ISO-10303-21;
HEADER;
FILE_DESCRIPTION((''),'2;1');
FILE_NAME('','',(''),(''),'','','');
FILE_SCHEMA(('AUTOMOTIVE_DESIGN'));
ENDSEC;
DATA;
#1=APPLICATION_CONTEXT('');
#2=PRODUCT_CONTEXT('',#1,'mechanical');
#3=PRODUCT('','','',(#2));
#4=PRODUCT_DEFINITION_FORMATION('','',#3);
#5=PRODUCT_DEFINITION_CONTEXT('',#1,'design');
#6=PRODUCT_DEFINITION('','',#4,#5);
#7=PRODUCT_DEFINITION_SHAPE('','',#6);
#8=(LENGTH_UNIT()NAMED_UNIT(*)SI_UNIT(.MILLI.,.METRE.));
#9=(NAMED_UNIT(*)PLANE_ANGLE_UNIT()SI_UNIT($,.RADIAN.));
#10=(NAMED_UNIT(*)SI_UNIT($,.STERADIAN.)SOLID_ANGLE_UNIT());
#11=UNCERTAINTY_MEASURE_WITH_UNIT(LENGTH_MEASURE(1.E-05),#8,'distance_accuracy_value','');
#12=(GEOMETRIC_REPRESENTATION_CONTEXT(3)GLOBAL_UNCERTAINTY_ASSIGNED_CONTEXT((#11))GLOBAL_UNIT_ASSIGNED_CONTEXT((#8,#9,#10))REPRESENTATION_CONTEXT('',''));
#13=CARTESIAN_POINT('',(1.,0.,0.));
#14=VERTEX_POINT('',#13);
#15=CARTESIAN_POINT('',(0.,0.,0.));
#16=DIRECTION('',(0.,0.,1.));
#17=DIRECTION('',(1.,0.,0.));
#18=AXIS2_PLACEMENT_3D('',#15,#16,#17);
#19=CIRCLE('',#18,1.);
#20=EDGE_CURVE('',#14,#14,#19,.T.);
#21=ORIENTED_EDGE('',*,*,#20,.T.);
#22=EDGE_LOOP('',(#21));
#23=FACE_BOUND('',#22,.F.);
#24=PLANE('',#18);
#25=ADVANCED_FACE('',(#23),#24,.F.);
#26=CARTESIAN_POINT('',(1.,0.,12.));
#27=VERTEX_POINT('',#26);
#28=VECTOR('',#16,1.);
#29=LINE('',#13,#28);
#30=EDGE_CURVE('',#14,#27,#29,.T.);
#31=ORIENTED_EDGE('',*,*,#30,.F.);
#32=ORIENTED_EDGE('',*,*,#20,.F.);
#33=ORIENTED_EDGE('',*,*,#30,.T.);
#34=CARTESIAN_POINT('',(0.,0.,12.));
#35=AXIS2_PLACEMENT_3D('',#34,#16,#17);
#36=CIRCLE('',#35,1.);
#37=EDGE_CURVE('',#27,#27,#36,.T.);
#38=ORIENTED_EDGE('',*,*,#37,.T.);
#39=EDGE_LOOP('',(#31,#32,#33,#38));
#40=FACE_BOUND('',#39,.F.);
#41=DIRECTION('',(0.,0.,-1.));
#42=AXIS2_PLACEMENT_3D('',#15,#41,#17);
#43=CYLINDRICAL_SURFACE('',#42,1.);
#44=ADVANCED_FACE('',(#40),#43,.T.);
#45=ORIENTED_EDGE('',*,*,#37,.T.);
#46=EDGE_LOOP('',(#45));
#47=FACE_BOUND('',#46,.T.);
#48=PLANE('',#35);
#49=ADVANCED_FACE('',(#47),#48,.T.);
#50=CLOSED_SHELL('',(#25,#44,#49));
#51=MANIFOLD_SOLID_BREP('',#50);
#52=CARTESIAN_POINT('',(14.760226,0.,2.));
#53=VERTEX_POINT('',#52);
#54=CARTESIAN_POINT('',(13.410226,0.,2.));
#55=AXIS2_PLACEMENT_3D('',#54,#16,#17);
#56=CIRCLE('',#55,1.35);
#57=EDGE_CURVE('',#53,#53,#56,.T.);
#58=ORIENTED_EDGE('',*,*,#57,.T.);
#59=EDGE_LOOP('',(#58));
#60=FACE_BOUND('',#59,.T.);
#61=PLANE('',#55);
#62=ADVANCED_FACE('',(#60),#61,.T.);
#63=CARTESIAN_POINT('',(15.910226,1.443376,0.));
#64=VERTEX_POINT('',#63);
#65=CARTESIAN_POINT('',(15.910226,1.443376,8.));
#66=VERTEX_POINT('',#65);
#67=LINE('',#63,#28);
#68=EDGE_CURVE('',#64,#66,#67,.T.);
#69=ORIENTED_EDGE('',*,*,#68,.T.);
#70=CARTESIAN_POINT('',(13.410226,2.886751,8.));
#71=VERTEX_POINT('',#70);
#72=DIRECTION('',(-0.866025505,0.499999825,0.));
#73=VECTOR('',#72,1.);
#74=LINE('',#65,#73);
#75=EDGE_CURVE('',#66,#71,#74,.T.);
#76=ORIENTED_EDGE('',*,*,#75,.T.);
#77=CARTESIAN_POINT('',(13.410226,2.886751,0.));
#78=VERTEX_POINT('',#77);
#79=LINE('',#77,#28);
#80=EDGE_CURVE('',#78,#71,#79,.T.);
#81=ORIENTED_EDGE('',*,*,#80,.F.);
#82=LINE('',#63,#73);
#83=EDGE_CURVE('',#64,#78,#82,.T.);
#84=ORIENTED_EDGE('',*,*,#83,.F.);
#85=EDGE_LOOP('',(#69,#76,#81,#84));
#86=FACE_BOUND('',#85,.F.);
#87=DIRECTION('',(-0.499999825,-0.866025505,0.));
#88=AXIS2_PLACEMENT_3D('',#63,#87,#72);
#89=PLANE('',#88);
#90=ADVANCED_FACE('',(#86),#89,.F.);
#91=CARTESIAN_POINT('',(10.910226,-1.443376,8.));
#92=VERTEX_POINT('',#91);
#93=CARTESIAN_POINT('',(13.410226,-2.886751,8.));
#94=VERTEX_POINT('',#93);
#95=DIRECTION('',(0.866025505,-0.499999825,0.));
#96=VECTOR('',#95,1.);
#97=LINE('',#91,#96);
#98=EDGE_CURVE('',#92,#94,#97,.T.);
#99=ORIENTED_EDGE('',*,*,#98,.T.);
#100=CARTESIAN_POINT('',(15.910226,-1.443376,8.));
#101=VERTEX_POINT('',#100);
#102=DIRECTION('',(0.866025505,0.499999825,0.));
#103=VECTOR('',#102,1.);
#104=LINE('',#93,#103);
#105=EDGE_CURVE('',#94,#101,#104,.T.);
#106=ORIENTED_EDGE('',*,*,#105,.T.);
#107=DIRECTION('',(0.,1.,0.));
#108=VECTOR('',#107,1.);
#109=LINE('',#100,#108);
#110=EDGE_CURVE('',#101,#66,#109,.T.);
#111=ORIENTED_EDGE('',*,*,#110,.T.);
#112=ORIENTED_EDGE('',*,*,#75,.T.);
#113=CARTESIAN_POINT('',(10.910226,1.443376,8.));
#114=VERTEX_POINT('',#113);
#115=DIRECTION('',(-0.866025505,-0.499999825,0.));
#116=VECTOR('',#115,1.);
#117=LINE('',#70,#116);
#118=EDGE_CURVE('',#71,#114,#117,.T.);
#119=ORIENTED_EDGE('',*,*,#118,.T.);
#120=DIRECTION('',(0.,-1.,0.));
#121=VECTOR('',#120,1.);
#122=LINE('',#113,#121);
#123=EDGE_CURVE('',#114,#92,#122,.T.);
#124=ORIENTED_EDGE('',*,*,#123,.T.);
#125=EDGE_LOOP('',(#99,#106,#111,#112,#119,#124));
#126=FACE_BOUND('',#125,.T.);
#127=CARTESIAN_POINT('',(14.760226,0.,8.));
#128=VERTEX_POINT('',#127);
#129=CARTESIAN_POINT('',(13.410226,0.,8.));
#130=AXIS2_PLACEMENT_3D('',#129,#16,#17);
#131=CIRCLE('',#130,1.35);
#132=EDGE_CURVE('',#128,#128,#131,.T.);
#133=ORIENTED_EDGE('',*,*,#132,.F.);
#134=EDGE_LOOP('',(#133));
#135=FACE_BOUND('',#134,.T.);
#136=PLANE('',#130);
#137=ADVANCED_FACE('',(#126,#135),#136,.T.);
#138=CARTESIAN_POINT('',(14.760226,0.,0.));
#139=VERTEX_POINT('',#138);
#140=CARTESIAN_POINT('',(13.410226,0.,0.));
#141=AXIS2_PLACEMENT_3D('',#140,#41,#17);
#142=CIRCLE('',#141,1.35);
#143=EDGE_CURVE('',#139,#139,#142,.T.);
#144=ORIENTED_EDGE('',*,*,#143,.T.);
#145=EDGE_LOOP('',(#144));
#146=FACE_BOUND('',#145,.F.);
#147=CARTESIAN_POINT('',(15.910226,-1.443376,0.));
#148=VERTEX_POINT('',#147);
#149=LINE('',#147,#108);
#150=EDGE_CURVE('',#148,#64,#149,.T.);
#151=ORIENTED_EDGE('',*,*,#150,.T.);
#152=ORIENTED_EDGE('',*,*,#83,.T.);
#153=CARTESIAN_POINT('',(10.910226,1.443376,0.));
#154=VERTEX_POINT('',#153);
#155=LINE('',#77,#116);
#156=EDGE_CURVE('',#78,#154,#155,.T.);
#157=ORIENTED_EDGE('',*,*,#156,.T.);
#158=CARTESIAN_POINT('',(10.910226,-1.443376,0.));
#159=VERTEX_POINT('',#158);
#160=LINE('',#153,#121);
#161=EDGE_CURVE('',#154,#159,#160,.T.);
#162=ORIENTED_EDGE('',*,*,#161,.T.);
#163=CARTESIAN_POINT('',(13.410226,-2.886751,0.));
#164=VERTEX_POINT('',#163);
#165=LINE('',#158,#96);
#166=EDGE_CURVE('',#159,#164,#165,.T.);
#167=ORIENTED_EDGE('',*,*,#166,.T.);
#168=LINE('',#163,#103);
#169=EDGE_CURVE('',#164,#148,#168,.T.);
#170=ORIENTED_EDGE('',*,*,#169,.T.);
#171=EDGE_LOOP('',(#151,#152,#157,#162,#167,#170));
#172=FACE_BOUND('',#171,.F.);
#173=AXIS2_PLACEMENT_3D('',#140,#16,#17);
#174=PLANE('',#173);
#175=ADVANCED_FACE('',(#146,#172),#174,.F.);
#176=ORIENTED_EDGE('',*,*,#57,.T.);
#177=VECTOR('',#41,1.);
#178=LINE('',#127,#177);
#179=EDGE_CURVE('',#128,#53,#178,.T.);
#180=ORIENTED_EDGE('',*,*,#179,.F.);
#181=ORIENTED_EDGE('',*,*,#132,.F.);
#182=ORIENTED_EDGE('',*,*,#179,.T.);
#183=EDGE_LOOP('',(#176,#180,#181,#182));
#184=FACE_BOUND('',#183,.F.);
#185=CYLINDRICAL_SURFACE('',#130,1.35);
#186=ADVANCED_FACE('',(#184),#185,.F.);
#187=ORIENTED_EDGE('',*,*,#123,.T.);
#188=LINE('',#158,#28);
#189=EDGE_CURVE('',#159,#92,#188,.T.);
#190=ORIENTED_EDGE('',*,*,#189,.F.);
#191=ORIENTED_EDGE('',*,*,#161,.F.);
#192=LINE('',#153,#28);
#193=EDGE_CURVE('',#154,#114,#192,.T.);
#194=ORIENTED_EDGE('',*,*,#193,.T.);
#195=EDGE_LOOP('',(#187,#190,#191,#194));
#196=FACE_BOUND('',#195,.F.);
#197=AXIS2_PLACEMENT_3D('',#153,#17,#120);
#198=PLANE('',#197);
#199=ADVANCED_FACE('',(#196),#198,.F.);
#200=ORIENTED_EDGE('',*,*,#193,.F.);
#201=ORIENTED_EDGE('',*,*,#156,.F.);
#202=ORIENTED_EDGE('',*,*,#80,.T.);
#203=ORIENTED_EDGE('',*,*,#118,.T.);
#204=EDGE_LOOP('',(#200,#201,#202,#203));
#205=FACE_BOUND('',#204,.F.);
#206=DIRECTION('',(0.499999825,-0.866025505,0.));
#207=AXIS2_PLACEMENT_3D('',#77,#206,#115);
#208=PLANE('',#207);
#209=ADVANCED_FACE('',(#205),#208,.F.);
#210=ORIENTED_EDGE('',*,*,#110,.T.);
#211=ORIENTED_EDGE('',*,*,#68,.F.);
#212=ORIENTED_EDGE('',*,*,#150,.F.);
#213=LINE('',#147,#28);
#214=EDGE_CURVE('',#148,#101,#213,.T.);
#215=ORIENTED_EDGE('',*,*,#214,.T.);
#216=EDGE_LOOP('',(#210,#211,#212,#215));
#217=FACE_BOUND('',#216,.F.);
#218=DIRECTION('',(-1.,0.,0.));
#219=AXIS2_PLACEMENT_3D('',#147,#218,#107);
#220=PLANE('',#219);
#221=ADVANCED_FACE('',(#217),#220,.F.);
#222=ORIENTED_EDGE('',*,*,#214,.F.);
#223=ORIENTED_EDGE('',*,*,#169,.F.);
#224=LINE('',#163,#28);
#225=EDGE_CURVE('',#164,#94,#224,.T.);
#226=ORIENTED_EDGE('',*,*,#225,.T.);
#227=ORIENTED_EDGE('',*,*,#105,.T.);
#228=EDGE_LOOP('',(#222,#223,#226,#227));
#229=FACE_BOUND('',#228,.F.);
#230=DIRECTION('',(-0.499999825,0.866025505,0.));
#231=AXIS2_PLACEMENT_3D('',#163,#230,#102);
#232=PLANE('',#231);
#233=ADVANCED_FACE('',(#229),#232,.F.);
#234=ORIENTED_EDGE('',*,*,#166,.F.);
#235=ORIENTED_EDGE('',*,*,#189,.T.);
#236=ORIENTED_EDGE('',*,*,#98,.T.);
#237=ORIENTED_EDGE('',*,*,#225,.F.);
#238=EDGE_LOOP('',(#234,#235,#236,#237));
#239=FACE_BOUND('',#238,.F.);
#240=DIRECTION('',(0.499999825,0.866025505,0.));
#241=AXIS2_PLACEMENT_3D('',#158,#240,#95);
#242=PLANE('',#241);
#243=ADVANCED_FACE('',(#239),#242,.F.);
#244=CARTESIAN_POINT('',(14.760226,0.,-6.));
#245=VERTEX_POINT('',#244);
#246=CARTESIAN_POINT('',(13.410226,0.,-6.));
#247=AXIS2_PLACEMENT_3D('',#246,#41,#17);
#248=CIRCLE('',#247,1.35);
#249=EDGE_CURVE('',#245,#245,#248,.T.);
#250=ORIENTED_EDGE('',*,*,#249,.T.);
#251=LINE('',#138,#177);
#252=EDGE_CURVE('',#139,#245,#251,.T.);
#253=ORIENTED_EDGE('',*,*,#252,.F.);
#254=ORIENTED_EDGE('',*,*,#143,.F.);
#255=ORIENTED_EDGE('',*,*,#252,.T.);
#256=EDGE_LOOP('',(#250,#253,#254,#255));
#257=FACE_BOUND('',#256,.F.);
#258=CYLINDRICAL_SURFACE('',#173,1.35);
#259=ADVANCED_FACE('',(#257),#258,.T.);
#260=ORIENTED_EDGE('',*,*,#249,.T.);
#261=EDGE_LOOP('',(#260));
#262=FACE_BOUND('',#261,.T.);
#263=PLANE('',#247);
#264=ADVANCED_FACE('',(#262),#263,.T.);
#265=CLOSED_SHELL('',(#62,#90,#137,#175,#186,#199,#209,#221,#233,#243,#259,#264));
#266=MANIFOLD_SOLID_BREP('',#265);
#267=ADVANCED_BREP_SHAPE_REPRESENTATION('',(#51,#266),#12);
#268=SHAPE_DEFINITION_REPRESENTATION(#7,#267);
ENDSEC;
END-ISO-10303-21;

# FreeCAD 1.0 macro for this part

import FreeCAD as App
import Part
import Sketcher

V = App.Vector
Q = App.Units.Quantity

doc = App.newDocument("Part")
body = doc.addObject("PartDesign::Body", "Body")

sketch1 = body.newObject("Sketcher::SketchObject", "Sketch")
sketch1.AttachmentSupport = (doc.getObject("XY_Plane"), [""])
sketch1.MapMode = "FlatFace"
sketch1.addGeometry(Part.Circle(V(0, 0, 0), V(0, 0, 1), 1), False)
sketch1.addConstraint([
    Sketcher.Constraint("Coincident", 0, 3, -1, 1),
    Sketcher.Constraint("Diameter", 0, Q("2 mm")),
])
pad1 = body.newObject("PartDesign::Pad", "Pad")
pad1.Profile = sketch1
pad1.Length = 12
body2 = doc.addObject("PartDesign::Body", "Body001")

sketch2 = body2.newObject("Sketcher::SketchObject", "Sketch001")
sketch2.AttachmentSupport = (doc.getObject("XY_Plane001"), [""])
sketch2.MapMode = "FlatFace"
sketch2.addGeometry([
    Part.LineSegment(V(15.9, -1.4, 0), V(15.9, 1.4, 0)),
    Part.LineSegment(V(15.9, 1.4, 0), V(13.4, 2.9, 0)),
    Part.LineSegment(V(13.4, 2.9, 0), V(10.9, 1.4, 0)),
    Part.LineSegment(V(10.9, 1.4, 0), V(10.9, -1.4, 0)),
    Part.LineSegment(V(10.9, -1.4, 0), V(13.4, -2.9, 0)),
    Part.LineSegment(V(13.4, -2.9, 0), V(15.9, -1.4, 0)),
], False)
sketch2.addConstraint([
    Sketcher.Constraint("Coincident", 0, 2, 1, 1),
    Sketcher.Constraint("Coincident", 1, 2, 2, 1),
    Sketcher.Constraint("Coincident", 2, 2, 3, 1),
    Sketcher.Constraint("Coincident", 3, 2, 4, 1),
    Sketcher.Constraint("Coincident", 4, 2, 5, 1),
    Sketcher.Constraint("Coincident", 5, 2, 0, 1),
    Sketcher.Constraint("Vertical", 0),
    Sketcher.Constraint("Vertical", 3),
    Sketcher.Constraint("Symmetric", 1, 2, 4, 2, -1),
    Sketcher.Constraint("Parallel", 1, 4),
    Sketcher.Constraint("Parallel", 2, 5),
    Sketcher.Constraint("Horizontal", 0, 2, 2, 2),
    Sketcher.Constraint("Horizontal", 3, 2, 5, 2),
    Sketcher.Constraint("Angle", 1, Q("150.000012 deg")),
    Sketcher.Constraint("DistanceX", 2, 2, 0, 2, Q("5 mm")),
    Sketcher.Constraint("DistanceY", 0, 1, 0, 2, Q("2.886752 mm")),
    Sketcher.Constraint("DistanceX", -1, 1, 0, 2, Q("15.910226 mm")),
])
pad2 = body2.newObject("PartDesign::Pad", "Pad001")
pad2.Profile = sketch2
pad2.Length = 8

sketch3 = body2.newObject("Sketcher::SketchObject", "Sketch002")
sketch3.AttachmentSupport = (doc.getObject("XY_Plane001"), [""])
sketch3.MapMode = "FlatFace"
sketch3.AttachmentOffset = App.Placement(V(0, 0, 8), App.Rotation())
sketch3.addGeometry(Part.Circle(V(13.4, 0, 0), V(0, 0, 1), 1.4), False)
sketch3.addConstraint([
    Sketcher.Constraint("PointOnObject", 0, 3, -1),
    Sketcher.Constraint("Diameter", 0, Q("2.7 mm")),
    Sketcher.Constraint("DistanceX", -1, 1, 0, 3, Q("13.410226 mm")),
])
pocket1 = body2.newObject("PartDesign::Pocket", "Pocket")
pocket1.Profile = sketch3
pocket1.Length = 6

sketch4 = body2.newObject("Sketcher::SketchObject", "Sketch003")
sketch4.AttachmentSupport = (doc.getObject("XY_Plane001"), [""])
sketch4.MapMode = "FlatFace"
sketch4.addGeometry(Part.Circle(V(13.4, 0, 0), V(0, 0, 1), 1.4), False)
sketch4.addConstraint([
    Sketcher.Constraint("PointOnObject", 0, 3, -1),
    Sketcher.Constraint("Diameter", 0, Q("2.7 mm")),
    Sketcher.Constraint("DistanceX", -1, 1, 0, 3, Q("13.410226 mm")),
])
pad3 = body2.newObject("PartDesign::Pad", "Pad002")
pad3.Profile = sketch4
pad3.Length = 6
pad3.Reversed = True

doc.recompute()
